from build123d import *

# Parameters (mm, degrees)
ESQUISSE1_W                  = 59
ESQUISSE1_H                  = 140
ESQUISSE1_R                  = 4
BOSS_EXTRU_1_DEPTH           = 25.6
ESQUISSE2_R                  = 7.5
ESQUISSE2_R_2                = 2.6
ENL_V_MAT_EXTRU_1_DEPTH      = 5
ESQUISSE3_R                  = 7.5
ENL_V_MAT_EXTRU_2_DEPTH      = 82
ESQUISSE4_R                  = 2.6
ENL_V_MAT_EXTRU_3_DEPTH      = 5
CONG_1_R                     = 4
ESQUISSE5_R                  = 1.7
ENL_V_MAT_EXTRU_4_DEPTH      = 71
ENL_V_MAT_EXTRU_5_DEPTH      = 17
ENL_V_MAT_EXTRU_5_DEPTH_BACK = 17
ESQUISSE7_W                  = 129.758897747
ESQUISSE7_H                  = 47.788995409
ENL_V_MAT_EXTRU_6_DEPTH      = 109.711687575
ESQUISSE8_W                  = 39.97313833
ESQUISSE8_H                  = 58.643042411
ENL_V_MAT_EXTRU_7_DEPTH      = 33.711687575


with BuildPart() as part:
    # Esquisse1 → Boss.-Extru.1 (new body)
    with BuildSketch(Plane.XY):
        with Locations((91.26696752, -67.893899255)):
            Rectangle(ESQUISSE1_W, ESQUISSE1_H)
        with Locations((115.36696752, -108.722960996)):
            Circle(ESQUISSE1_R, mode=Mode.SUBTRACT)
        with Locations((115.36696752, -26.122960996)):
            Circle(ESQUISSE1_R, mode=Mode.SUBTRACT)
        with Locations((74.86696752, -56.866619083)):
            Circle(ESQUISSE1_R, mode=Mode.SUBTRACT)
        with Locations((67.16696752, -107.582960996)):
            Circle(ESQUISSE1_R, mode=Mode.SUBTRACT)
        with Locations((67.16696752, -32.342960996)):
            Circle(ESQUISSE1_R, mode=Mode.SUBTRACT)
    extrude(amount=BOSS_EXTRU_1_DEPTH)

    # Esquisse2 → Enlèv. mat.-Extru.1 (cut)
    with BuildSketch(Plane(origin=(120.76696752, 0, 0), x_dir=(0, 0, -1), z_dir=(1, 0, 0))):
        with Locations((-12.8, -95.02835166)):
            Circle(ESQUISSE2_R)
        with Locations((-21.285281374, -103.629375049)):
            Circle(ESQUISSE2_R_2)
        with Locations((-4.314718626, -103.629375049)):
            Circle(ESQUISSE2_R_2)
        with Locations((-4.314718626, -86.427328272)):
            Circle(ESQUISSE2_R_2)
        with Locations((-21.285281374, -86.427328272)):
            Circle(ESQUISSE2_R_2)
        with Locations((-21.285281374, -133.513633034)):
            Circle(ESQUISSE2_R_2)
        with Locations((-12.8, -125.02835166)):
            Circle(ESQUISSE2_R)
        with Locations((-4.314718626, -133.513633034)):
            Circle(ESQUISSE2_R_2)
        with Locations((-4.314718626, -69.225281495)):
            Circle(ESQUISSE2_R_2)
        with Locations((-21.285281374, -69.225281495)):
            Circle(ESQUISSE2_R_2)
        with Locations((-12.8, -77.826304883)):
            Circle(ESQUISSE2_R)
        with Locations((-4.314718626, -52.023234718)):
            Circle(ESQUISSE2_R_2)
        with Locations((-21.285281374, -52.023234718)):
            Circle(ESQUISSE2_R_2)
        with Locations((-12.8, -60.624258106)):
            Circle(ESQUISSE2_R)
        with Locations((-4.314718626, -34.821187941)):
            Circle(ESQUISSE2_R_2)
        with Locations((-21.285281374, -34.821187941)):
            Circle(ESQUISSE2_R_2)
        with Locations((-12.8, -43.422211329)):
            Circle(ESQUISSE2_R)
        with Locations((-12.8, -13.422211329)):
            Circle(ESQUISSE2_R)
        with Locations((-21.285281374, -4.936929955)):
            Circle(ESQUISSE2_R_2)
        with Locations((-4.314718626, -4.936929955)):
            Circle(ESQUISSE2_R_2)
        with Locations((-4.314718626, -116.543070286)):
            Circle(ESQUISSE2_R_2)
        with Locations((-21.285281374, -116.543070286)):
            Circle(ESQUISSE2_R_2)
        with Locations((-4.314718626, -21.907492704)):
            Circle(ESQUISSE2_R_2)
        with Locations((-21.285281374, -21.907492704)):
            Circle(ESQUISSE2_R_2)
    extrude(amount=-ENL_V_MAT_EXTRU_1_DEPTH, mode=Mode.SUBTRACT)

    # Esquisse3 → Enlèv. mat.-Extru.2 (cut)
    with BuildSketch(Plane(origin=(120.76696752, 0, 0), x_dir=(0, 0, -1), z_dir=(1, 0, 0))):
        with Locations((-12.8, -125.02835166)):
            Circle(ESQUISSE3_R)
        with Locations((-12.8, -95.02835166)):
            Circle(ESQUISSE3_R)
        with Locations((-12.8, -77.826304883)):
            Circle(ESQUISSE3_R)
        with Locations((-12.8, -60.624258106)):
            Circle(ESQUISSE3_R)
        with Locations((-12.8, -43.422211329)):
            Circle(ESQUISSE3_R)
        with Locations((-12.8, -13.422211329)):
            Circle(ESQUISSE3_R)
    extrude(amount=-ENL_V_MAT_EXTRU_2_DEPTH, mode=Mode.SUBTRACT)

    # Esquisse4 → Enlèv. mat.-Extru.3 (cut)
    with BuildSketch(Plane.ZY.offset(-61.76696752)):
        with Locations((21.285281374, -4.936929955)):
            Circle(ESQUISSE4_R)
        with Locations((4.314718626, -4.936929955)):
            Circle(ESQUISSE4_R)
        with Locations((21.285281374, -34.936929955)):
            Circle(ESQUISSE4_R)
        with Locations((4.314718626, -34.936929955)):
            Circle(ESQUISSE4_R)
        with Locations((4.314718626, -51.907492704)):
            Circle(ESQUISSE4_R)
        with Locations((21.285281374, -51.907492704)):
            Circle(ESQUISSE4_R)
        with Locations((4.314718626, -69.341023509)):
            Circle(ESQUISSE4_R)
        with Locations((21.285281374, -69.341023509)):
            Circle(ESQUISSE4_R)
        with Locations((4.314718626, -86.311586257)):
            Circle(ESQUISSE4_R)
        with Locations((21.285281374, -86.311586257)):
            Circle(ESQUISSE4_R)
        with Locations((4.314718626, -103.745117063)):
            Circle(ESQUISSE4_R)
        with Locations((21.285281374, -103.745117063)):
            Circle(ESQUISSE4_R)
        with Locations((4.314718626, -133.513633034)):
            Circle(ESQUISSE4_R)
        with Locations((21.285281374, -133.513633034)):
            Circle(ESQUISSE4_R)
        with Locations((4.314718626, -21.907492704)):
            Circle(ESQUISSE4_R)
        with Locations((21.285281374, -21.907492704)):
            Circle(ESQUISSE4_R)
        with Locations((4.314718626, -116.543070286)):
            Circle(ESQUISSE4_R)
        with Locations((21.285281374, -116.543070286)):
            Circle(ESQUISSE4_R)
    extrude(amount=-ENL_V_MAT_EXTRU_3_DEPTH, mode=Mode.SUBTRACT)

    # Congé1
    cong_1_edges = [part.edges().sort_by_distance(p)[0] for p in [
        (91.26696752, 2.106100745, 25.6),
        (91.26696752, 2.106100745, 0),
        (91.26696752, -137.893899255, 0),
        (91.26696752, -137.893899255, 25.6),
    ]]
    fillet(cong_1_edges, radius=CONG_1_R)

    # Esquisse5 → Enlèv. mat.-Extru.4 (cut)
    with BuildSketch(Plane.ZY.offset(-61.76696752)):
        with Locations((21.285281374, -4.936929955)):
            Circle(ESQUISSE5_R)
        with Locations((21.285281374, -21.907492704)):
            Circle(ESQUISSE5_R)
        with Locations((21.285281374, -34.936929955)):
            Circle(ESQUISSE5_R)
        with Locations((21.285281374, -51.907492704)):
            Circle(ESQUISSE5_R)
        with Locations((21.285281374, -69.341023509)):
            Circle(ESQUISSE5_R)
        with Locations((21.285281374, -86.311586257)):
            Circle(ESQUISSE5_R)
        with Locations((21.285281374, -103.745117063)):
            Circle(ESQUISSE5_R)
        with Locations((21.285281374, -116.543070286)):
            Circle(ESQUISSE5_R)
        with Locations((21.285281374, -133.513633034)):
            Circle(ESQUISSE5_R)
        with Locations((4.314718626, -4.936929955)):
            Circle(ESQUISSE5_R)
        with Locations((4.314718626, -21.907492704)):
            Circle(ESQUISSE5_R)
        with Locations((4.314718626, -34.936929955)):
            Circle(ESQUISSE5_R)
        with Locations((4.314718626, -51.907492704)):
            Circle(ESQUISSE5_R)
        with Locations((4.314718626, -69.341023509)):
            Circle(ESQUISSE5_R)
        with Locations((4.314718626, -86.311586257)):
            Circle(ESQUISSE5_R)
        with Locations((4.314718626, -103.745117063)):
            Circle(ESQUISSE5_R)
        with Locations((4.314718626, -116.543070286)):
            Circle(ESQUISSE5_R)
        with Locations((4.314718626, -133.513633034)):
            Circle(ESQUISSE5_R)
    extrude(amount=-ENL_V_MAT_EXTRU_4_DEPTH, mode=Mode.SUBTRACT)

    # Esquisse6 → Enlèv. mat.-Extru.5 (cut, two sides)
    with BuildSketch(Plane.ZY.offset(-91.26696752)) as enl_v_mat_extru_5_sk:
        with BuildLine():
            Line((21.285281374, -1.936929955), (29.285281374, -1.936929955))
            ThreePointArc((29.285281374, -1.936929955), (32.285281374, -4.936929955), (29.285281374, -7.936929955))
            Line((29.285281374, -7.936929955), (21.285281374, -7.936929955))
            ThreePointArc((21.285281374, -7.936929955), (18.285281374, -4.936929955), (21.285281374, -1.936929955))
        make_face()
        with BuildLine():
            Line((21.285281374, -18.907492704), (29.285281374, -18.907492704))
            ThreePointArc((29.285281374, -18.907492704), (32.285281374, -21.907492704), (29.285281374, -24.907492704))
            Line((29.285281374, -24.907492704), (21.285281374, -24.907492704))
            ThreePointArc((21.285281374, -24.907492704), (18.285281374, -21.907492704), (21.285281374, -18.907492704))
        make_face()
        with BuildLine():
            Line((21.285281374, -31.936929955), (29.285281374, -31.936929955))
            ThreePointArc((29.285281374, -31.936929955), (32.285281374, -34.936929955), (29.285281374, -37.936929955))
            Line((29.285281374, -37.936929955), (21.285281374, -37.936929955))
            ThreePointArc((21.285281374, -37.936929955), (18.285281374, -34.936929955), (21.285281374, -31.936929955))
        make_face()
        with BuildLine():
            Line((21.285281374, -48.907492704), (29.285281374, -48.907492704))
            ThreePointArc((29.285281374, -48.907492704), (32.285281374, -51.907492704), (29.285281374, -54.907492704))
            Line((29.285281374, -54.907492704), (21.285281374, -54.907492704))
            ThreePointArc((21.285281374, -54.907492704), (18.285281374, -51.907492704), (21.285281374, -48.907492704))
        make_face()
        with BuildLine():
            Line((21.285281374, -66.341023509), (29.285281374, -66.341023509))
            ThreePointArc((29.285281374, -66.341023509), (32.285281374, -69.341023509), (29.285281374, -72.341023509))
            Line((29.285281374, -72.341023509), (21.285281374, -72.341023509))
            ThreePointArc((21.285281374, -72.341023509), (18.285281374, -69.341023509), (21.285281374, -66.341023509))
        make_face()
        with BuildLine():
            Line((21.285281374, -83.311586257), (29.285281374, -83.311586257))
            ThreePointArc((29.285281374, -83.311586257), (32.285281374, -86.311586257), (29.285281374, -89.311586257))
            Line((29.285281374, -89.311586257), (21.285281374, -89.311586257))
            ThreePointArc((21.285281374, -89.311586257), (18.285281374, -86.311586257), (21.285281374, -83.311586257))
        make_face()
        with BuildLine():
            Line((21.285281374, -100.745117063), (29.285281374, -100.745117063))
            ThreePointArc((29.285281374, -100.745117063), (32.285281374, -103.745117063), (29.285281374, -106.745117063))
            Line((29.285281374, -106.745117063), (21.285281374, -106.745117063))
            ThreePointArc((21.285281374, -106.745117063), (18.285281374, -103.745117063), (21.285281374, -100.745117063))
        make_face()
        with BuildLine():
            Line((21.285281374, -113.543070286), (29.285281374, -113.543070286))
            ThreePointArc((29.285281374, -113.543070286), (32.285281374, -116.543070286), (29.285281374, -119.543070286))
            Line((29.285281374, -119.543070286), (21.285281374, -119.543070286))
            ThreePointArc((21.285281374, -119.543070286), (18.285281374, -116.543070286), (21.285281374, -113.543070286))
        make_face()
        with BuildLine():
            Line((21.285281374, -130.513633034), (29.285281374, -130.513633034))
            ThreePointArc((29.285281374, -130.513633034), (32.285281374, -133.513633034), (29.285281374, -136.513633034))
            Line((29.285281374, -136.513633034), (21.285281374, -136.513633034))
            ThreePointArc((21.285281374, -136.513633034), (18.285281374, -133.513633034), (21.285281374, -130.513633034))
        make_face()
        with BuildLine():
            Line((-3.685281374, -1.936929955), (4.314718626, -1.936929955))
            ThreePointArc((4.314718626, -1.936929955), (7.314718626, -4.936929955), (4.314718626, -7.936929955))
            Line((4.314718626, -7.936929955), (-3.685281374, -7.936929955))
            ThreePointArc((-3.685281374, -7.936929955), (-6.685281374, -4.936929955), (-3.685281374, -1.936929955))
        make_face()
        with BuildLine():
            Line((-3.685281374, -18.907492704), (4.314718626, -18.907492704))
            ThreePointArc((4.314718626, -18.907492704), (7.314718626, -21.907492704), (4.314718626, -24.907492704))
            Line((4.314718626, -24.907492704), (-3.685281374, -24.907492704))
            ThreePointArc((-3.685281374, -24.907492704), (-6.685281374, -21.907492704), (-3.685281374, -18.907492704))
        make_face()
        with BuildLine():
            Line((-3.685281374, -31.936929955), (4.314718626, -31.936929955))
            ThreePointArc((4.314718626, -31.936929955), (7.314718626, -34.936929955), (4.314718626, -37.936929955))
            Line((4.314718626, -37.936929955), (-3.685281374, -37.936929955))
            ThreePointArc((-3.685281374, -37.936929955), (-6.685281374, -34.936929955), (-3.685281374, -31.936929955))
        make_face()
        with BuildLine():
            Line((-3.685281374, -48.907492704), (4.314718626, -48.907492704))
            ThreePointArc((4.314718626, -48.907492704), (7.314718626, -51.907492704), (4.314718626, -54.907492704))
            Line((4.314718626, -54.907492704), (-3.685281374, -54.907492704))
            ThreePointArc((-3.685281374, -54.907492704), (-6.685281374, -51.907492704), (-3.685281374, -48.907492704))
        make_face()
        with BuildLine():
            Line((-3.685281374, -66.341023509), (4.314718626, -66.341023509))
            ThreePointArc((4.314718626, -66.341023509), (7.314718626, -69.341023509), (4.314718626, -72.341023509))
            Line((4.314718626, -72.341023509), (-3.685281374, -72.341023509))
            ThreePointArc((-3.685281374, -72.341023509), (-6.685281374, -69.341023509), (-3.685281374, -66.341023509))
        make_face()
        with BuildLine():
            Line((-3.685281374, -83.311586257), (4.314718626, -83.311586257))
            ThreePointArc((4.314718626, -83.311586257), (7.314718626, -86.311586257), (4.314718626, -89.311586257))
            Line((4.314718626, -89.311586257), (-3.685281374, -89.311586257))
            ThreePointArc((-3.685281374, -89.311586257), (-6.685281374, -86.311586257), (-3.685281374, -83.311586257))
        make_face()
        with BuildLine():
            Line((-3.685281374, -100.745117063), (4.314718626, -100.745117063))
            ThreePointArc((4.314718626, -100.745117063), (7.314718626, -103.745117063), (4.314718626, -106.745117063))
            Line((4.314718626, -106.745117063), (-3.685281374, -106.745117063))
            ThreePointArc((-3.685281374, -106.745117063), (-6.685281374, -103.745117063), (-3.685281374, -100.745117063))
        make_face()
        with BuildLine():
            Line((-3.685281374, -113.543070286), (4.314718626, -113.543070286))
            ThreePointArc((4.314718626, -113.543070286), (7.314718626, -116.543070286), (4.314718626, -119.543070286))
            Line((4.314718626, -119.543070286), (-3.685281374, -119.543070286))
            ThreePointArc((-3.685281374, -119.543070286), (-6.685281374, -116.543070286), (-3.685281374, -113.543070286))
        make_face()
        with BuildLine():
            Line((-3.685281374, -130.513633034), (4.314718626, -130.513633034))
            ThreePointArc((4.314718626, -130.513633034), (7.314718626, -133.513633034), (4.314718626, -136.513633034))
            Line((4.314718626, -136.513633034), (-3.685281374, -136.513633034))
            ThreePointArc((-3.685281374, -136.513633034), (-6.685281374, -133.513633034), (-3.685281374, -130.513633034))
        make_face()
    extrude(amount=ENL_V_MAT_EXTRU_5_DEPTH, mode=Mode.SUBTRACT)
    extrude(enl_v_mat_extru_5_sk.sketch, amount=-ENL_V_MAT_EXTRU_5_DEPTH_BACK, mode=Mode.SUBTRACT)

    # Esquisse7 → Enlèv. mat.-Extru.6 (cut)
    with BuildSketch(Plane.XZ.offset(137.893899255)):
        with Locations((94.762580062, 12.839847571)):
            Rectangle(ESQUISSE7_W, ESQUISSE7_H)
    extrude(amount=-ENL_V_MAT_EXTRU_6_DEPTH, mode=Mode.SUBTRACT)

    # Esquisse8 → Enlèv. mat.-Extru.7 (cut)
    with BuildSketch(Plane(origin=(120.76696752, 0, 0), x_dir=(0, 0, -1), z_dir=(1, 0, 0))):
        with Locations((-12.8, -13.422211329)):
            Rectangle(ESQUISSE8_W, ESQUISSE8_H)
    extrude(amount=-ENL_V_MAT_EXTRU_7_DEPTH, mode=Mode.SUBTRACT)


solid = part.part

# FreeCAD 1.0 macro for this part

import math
import FreeCAD as App
import Part
import Sketcher

V = App.Vector


def edges_at(feature, points):
    """Names of the edges that pass closest to the given points."""
    edges = feature.Shape.Edges
    near = lambda p: min(range(len(edges)), key=lambda i: edges[i].distToShape(Part.Vertex(*p))[0])
    return sorted({f"Edge{near(p) + 1}" for p in points})


def add_polygon(sketch, points):
    """Adds a closed chain of lines whose ends are joined by coincident constraints."""
    first, n = sketch.GeometryCount, len(points)
    for a, b in zip(points, points[1:] + points[:1]):
        sketch.addGeometry(Part.LineSegment(App.Vector(*a, 0), App.Vector(*b, 0)), False)
    for i in range(n):
        sketch.addConstraint(Sketcher.Constraint("Coincident", first + i, 2, first + (i + 1) % n, 1))

doc = App.newDocument("Part")
body = doc.addObject("PartDesign::Body", "Body")

# Sketch on XY plane
sketch1 = doc.addObject("Sketcher::SketchObject", "Sketch")
body.addObject(sketch1)
sketch1.AttachmentSupport = (doc.XY_Plane, [""])
sketch1.MapMode = "FlatFace"
add_polygon(sketch1, [(61.766968, 2.106101), (61.766968, -137.893899), (120.766968, -137.893899), (120.766968, 2.106101)])  # lines 0-3
sketch1.addGeometry(Part.Circle(V(67.166968, -107.582961, 0), V(0, 0, 1), 4), False)  # 4
sketch1.addGeometry(Part.Circle(V(115.366968, -108.722961, 0), V(0, 0, 1), 4), False)  # 5
sketch1.addGeometry(Part.Circle(V(74.866968, -56.866619, 0), V(0, 0, 1), 4), False)  # 6
sketch1.addGeometry(Part.Circle(V(67.166968, -32.342961, 0), V(0, 0, 1), 4), False)  # 7
sketch1.addGeometry(Part.Circle(V(115.366968, -26.122961, 0), V(0, 0, 1), 4), False)  # 8
sketch1.addConstraint([
    Sketcher.Constraint("Vertical", 0),
    Sketcher.Constraint("Horizontal", 1),
    Sketcher.Constraint("Vertical", 2),
    Sketcher.Constraint("Horizontal", 3),
    Sketcher.Constraint("Equal", 4, 5),
    Sketcher.Constraint("Equal", 5, 6),
    Sketcher.Constraint("Equal", 6, 7),
    Sketcher.Constraint("Equal", 7, 8),
    Sketcher.Constraint("Vertical", 4, 3, 7, 3),
    Sketcher.Constraint("Vertical", 5, 3, 8, 3),
    Sketcher.Constraint("Diameter", 4, 8.0),
    Sketcher.Constraint("DistanceX", 1, 1, 1, 2, 59.0),
    Sketcher.Constraint("DistanceY", 0, 2, 0, 1, 140.0),
    Sketcher.Constraint("DistanceX", 4, 3, 5, 3, 48.2),
    Sketcher.Constraint("DistanceX", 4, 3, 6, 3, 7.7),
    Sketcher.Constraint("DistanceY", 5, 3, 8, 3, 82.6),
    Sketcher.Constraint("DistanceX", 0, 2, 4, 3, 5.4),
    Sketcher.Constraint("DistanceY", 5, 3, 4, 3, 1.14),
    Sketcher.Constraint("DistanceY", 4, 3, 7, 3, 75.24),
    Sketcher.Constraint("DistanceY", 0, 2, -1, 1, 137.893899),
    Sketcher.Constraint("DistanceY", 4, 3, -1, 1, 107.582961),
    Sketcher.Constraint("DistanceY", 6, 3, -1, 1, 56.866619),
    Sketcher.Constraint("DistanceX", -1, 1, 4, 3, 67.166968),
])
pad1 = doc.addObject("PartDesign::Pad", "Pad")
body.addObject(pad1)
pad1.Profile = sketch1
pad1.Length = 25.6

# Sketch on YZ plane
sketch2 = doc.addObject("Sketcher::SketchObject", "Sketch001")
body.addObject(sketch2)
sketch2.AttachmentSupport = (doc.YZ_Plane, [""])
sketch2.MapMode = "FlatFace"
sketch2.AttachmentOffset = App.Placement(V(0, 0, 120.766968), App.Rotation())
sketch2.addGeometry([
    Part.Circle(V(-95.028352, 12.8, 0), V(0, 0, 1), 7.5),  # 0
    Part.Circle(V(-103.629375, 21.285281, 0), V(0, 0, 1), 2.6),  # 1
    Part.Circle(V(-103.629375, 4.314719, 0), V(0, 0, 1), 2.6),  # 2
    Part.Circle(V(-86.427328, 4.314719, 0), V(0, 0, 1), 2.6),  # 3
    Part.Circle(V(-86.427328, 21.285281, 0), V(0, 0, 1), 2.6),  # 4
    Part.Circle(V(-133.513633, 21.285281, 0), V(0, 0, 1), 2.6),  # 5
    Part.Circle(V(-125.028352, 12.8, 0), V(0, 0, 1), 7.5),  # 6
    Part.Circle(V(-133.513633, 4.314719, 0), V(0, 0, 1), 2.6),  # 7
    Part.Circle(V(-69.225281, 4.314719, 0), V(0, 0, 1), 2.6),  # 8
    Part.Circle(V(-69.225281, 21.285281, 0), V(0, 0, 1), 2.6),  # 9
    Part.Circle(V(-77.826305, 12.8, 0), V(0, 0, 1), 7.5),  # 10
    Part.Circle(V(-52.023235, 4.314719, 0), V(0, 0, 1), 2.6),  # 11
    Part.Circle(V(-52.023235, 21.285281, 0), V(0, 0, 1), 2.6),  # 12
    Part.Circle(V(-60.624258, 12.8, 0), V(0, 0, 1), 7.5),  # 13
    Part.Circle(V(-34.821188, 4.314719, 0), V(0, 0, 1), 2.6),  # 14
    Part.Circle(V(-34.821188, 21.285281, 0), V(0, 0, 1), 2.6),  # 15
    Part.Circle(V(-43.422211, 12.8, 0), V(0, 0, 1), 7.5),  # 16
    Part.Circle(V(-13.422211, 12.8, 0), V(0, 0, 1), 7.5),  # 17
    Part.Circle(V(-4.93693, 21.285281, 0), V(0, 0, 1), 2.6),  # 18
    Part.Circle(V(-4.93693, 4.314719, 0), V(0, 0, 1), 2.6),  # 19
    Part.Circle(V(-116.54307, 4.314719, 0), V(0, 0, 1), 2.6),  # 20
    Part.Circle(V(-116.54307, 21.285281, 0), V(0, 0, 1), 2.6),  # 21
    Part.Circle(V(-21.907493, 4.314719, 0), V(0, 0, 1), 2.6),  # 22
    Part.Circle(V(-21.907493, 21.285281, 0), V(0, 0, 1), 2.6),  # 23
], False)
sketch2.addConstraint([
    Sketcher.Constraint("Equal", 1, 2),
    Sketcher.Constraint("Equal", 2, 3),
    Sketcher.Constraint("Equal", 3, 4),
    Sketcher.Constraint("Equal", 4, 5),
    Sketcher.Constraint("Equal", 0, 6),
    Sketcher.Constraint("Equal", 5, 7),
    Sketcher.Constraint("Equal", 7, 8),
    Sketcher.Constraint("Equal", 8, 9),
    Sketcher.Constraint("Equal", 6, 10),
    Sketcher.Constraint("Equal", 9, 11),
    Sketcher.Constraint("Equal", 11, 12),
    Sketcher.Constraint("Equal", 10, 13),
    Sketcher.Constraint("Equal", 12, 14),
    Sketcher.Constraint("Equal", 14, 15),
    Sketcher.Constraint("Equal", 13, 16),
    Sketcher.Constraint("Equal", 16, 17),
    Sketcher.Constraint("Equal", 15, 18),
    Sketcher.Constraint("Equal", 18, 19),
    Sketcher.Constraint("Equal", 19, 20),
    Sketcher.Constraint("Equal", 20, 21),
    Sketcher.Constraint("Equal", 21, 22),
    Sketcher.Constraint("Equal", 22, 23),
    Sketcher.Constraint("Horizontal", 2, 3, 3, 3),
    Sketcher.Constraint("Horizontal", 1, 3, 4, 3),
    Sketcher.Constraint("Horizontal", 4, 3, 5, 3),
    Sketcher.Constraint("Horizontal", 0, 3, 6, 3),
    Sketcher.Constraint("Horizontal", 3, 3, 7, 3),
    Sketcher.Constraint("Horizontal", 7, 3, 8, 3),
    Sketcher.Constraint("Horizontal", 5, 3, 9, 3),
    Sketcher.Constraint("Horizontal", 6, 3, 10, 3),
    Sketcher.Constraint("Horizontal", 8, 3, 11, 3),
    Sketcher.Constraint("Horizontal", 9, 3, 12, 3),
    Sketcher.Constraint("Horizontal", 10, 3, 13, 3),
    Sketcher.Constraint("Horizontal", 11, 3, 14, 3),
    Sketcher.Constraint("Horizontal", 12, 3, 15, 3),
    Sketcher.Constraint("Horizontal", 13, 3, 16, 3),
    Sketcher.Constraint("Horizontal", 16, 3, 17, 3),
    Sketcher.Constraint("Horizontal", 15, 3, 18, 3),
    Sketcher.Constraint("Horizontal", 14, 3, 19, 3),
    Sketcher.Constraint("Horizontal", 19, 3, 20, 3),
    Sketcher.Constraint("Horizontal", 18, 3, 21, 3),
    Sketcher.Constraint("Horizontal", 20, 3, 22, 3),
    Sketcher.Constraint("Horizontal", 21, 3, 23, 3),
    Sketcher.Constraint("Vertical", 1, 3, 2, 3),
    Sketcher.Constraint("Vertical", 3, 3, 4, 3),
    Sketcher.Constraint("Vertical", 5, 3, 7, 3),
    Sketcher.Constraint("Vertical", 8, 3, 9, 3),
    Sketcher.Constraint("Vertical", 11, 3, 12, 3),
    Sketcher.Constraint("Vertical", 14, 3, 15, 3),
    Sketcher.Constraint("Vertical", 18, 3, 19, 3),
    Sketcher.Constraint("Vertical", 20, 3, 21, 3),
    Sketcher.Constraint("Vertical", 22, 3, 23, 3),
    Sketcher.Constraint("Diameter", 0, 15.0),
    Sketcher.Constraint("Diameter", 1, 5.2),
    Sketcher.Constraint("DistanceX", 6, 3, 0, 3, 30.0),
    Sketcher.Constraint("DistanceX", 16, 3, 17, 3, 30.0),
    Sketcher.Constraint("DistanceY", -1, 1, 0, 3, 12.8),
    Sketcher.Constraint("DistanceX", 0, 3, -1, 1, 95.028352),
    Sketcher.Constraint("DistanceY", -1, 1, 1, 3, 21.285281),
    Sketcher.Constraint("DistanceY", -1, 1, 2, 3, 4.314719),
    Sketcher.Constraint("DistanceX", 3, 3, -1, 1, 86.427328),
    Sketcher.Constraint("DistanceX", 8, 3, -1, 1, 69.225281),
    Sketcher.Constraint("DistanceX", 13, 3, -1, 1, 60.624258),
    Sketcher.Constraint("DistanceX", 16, 3, -1, 1, 43.422211),
    Sketcher.Constraint("DistanceX", 18, 3, -1, 1, 4.93693),
    Sketcher.Constraint("DistanceX", 20, 3, -1, 1, 116.54307),
    Sketcher.Constraint("DistanceX", 5, 3, 0, 3, 38.485281),
    Sketcher.Constraint("DistanceX", 10, 3, 11, 3, 25.80307),
    Sketcher.Constraint("DistanceX", 13, 3, 14, 3, 25.80307),
    Sketcher.Constraint("DistanceX", 22, 3, 17, 3, 8.485281),
    Sketcher.Constraint("DistanceX", 1, 3, -1, 1, 103.629375),
    Sketcher.Constraint("DistanceX", 10, 3, -1, 1, 77.826305),
])
pocket1 = doc.addObject("PartDesign::Pocket", "Pocket")
body.addObject(pocket1)
pocket1.Profile = sketch2
pocket1.Length = 5

# Sketch on YZ plane
sketch3 = doc.addObject("Sketcher::SketchObject", "Sketch002")
body.addObject(sketch3)
sketch3.AttachmentSupport = (doc.YZ_Plane, [""])
sketch3.MapMode = "FlatFace"
sketch3.AttachmentOffset = App.Placement(V(0, 0, 120.766968), App.Rotation())
sketch3.addGeometry([
    Part.Circle(V(-125.028352, 12.8, 0), V(0, 0, 1), 7.5),  # 0
    Part.Circle(V(-95.028352, 12.8, 0), V(0, 0, 1), 7.5),  # 1
    Part.Circle(V(-77.826305, 12.8, 0), V(0, 0, 1), 7.5),  # 2
    Part.Circle(V(-60.624258, 12.8, 0), V(0, 0, 1), 7.5),  # 3
    Part.Circle(V(-43.422211, 12.8, 0), V(0, 0, 1), 7.5),  # 4
    Part.Circle(V(-13.422211, 12.8, 0), V(0, 0, 1), 7.5),  # 5
], False)
sketch3.addConstraint([
    Sketcher.Constraint("Equal", 0, 1),
    Sketcher.Constraint("Equal", 1, 2),
    Sketcher.Constraint("Equal", 2, 3),
    Sketcher.Constraint("Equal", 3, 4),
    Sketcher.Constraint("Equal", 4, 5),
    Sketcher.Constraint("Horizontal", 0, 3, 1, 3),
    Sketcher.Constraint("Horizontal", 1, 3, 2, 3),
    Sketcher.Constraint("Horizontal", 2, 3, 3, 3),
    Sketcher.Constraint("Horizontal", 3, 3, 4, 3),
    Sketcher.Constraint("Horizontal", 4, 3, 5, 3),
    Sketcher.Constraint("Diameter", 0, 15.0),
    Sketcher.Constraint("DistanceX", 0, 3, 1, 3, 30.0),
    Sketcher.Constraint("DistanceX", 4, 3, 5, 3, 30.0),
    Sketcher.Constraint("DistanceY", -1, 1, 0, 3, 12.8),
    Sketcher.Constraint("DistanceX", 0, 3, -1, 1, 125.028352),
    Sketcher.Constraint("DistanceX", 3, 3, -1, 1, 60.624258),
    Sketcher.Constraint("DistanceX", 4, 3, -1, 1, 43.422211),
    Sketcher.Constraint("DistanceX", 2, 3, -1, 1, 77.826305),
])
pocket2 = doc.addObject("PartDesign::Pocket", "Pocket001")
body.addObject(pocket2)
pocket2.Profile = sketch3
pocket2.Length = 82

# Sketch on YZ plane
sketch4 = doc.addObject("Sketcher::SketchObject", "Sketch003")
body.addObject(sketch4)
sketch4.AttachmentSupport = (doc.YZ_Plane, [""])
sketch4.MapMode = "FlatFace"
sketch4.AttachmentOffset = App.Placement(V(0, 0, 61.766968), App.Rotation())
sketch4.addGeometry([
    Part.Circle(V(-4.93693, 21.285281, 0), V(0, 0, 1), 2.6),  # 0
    Part.Circle(V(-4.93693, 4.314719, 0), V(0, 0, 1), 2.6),  # 1
    Part.Circle(V(-34.93693, 21.285281, 0), V(0, 0, 1), 2.6),  # 2
    Part.Circle(V(-34.93693, 4.314719, 0), V(0, 0, 1), 2.6),  # 3
    Part.Circle(V(-51.907493, 4.314719, 0), V(0, 0, 1), 2.6),  # 4
    Part.Circle(V(-51.907493, 21.285281, 0), V(0, 0, 1), 2.6),  # 5
    Part.Circle(V(-69.341024, 4.314719, 0), V(0, 0, 1), 2.6),  # 6
    Part.Circle(V(-69.341024, 21.285281, 0), V(0, 0, 1), 2.6),  # 7
    Part.Circle(V(-86.311586, 4.314719, 0), V(0, 0, 1), 2.6),  # 8
    Part.Circle(V(-86.311586, 21.285281, 0), V(0, 0, 1), 2.6),  # 9
    Part.Circle(V(-103.745117, 4.314719, 0), V(0, 0, 1), 2.6),  # 10
    Part.Circle(V(-103.745117, 21.285281, 0), V(0, 0, 1), 2.6),  # 11
    Part.Circle(V(-133.513633, 4.314719, 0), V(0, 0, 1), 2.6),  # 12
    Part.Circle(V(-133.513633, 21.285281, 0), V(0, 0, 1), 2.6),  # 13
    Part.Circle(V(-21.907493, 4.314719, 0), V(0, 0, 1), 2.6),  # 14
    Part.Circle(V(-21.907493, 21.285281, 0), V(0, 0, 1), 2.6),  # 15
    Part.Circle(V(-116.54307, 4.314719, 0), V(0, 0, 1), 2.6),  # 16
    Part.Circle(V(-116.54307, 21.285281, 0), V(0, 0, 1), 2.6),  # 17
], False)
sketch4.addConstraint([
    Sketcher.Constraint("Equal", 0, 1),
    Sketcher.Constraint("Equal", 1, 2),
    Sketcher.Constraint("Equal", 2, 3),
    Sketcher.Constraint("Equal", 3, 4),
    Sketcher.Constraint("Equal", 4, 5),
    Sketcher.Constraint("Equal", 5, 6),
    Sketcher.Constraint("Equal", 6, 7),
    Sketcher.Constraint("Equal", 7, 8),
    Sketcher.Constraint("Equal", 8, 9),
    Sketcher.Constraint("Equal", 9, 10),
    Sketcher.Constraint("Equal", 10, 11),
    Sketcher.Constraint("Equal", 11, 12),
    Sketcher.Constraint("Equal", 12, 13),
    Sketcher.Constraint("Equal", 13, 14),
    Sketcher.Constraint("Equal", 14, 15),
    Sketcher.Constraint("Equal", 15, 16),
    Sketcher.Constraint("Equal", 16, 17),
    Sketcher.Constraint("Horizontal", 0, 3, 2, 3),
    Sketcher.Constraint("Horizontal", 1, 3, 3, 3),
    Sketcher.Constraint("Horizontal", 3, 3, 4, 3),
    Sketcher.Constraint("Horizontal", 2, 3, 5, 3),
    Sketcher.Constraint("Horizontal", 4, 3, 6, 3),
    Sketcher.Constraint("Horizontal", 5, 3, 7, 3),
    Sketcher.Constraint("Horizontal", 6, 3, 8, 3),
    Sketcher.Constraint("Horizontal", 7, 3, 9, 3),
    Sketcher.Constraint("Horizontal", 8, 3, 10, 3),
    Sketcher.Constraint("Horizontal", 9, 3, 11, 3),
    Sketcher.Constraint("Horizontal", 10, 3, 12, 3),
    Sketcher.Constraint("Horizontal", 11, 3, 13, 3),
    Sketcher.Constraint("Horizontal", 12, 3, 14, 3),
    Sketcher.Constraint("Horizontal", 13, 3, 15, 3),
    Sketcher.Constraint("Horizontal", 14, 3, 16, 3),
    Sketcher.Constraint("Horizontal", 15, 3, 17, 3),
    Sketcher.Constraint("Vertical", 0, 3, 1, 3),
    Sketcher.Constraint("Vertical", 2, 3, 3, 3),
    Sketcher.Constraint("Vertical", 4, 3, 5, 3),
    Sketcher.Constraint("Vertical", 6, 3, 7, 3),
    Sketcher.Constraint("Vertical", 8, 3, 9, 3),
    Sketcher.Constraint("Vertical", 10, 3, 11, 3),
    Sketcher.Constraint("Vertical", 12, 3, 13, 3),
    Sketcher.Constraint("Vertical", 14, 3, 15, 3),
    Sketcher.Constraint("Vertical", 16, 3, 17, 3),
    Sketcher.Constraint("Diameter", 0, 5.2),
    Sketcher.Constraint("DistanceX", 2, 3, 0, 3, 30.0),
    Sketcher.Constraint("DistanceX", 4, 3, 14, 3, 30.0),
    Sketcher.Constraint("DistanceX", 0, 3, -1, 1, 4.93693),
    Sketcher.Constraint("DistanceY", -1, 1, 0, 3, 21.285281),
    Sketcher.Constraint("DistanceY", -1, 1, 1, 3, 4.314719),
    Sketcher.Constraint("DistanceX", 16, 3, -1, 1, 116.54307),
    Sketcher.Constraint("DistanceX", 6, 3, 4, 3, 17.433531),
    Sketcher.Constraint("DistanceX", 10, 3, 8, 3, 17.433531),
    Sketcher.Constraint("DistanceX", 12, 3, 6, 3, 64.17261),
    Sketcher.Constraint("DistanceX", 4, 3, -1, 1, 51.907493),
    Sketcher.Constraint("DistanceX", 8, 3, -1, 1, 86.311586),
])
pocket3 = doc.addObject("PartDesign::Pocket", "Pocket002")
body.addObject(pocket3)
pocket3.Profile = sketch4
pocket3.Length = 5
pocket3.Reversed = True
doc.recompute()

fillet = doc.addObject("PartDesign::Fillet", "Fillet")
body.addObject(fillet)
fillet.Base = (pocket3, edges_at(pocket3, [
    (91.267, 2.106, 25.6),
    (91.267, 2.106, 0),
    (91.267, -137.894, 0),
    (91.267, -137.894, 25.6),
]))
fillet.Radius = 4

# Sketch on YZ plane
sketch5 = doc.addObject("Sketcher::SketchObject", "Sketch004")
body.addObject(sketch5)
sketch5.AttachmentSupport = (doc.YZ_Plane, [""])
sketch5.MapMode = "FlatFace"
sketch5.AttachmentOffset = App.Placement(V(0, 0, 61.766968), App.Rotation())
sketch5.addGeometry([
    Part.Circle(V(-4.93693, 21.285281, 0), V(0, 0, 1), 1.7),  # 0
    Part.Circle(V(-21.907493, 21.285281, 0), V(0, 0, 1), 1.7),  # 1
    Part.Circle(V(-34.93693, 21.285281, 0), V(0, 0, 1), 1.7),  # 2
    Part.Circle(V(-51.907493, 21.285281, 0), V(0, 0, 1), 1.7),  # 3
    Part.Circle(V(-69.341024, 21.285281, 0), V(0, 0, 1), 1.7),  # 4
    Part.Circle(V(-86.311586, 21.285281, 0), V(0, 0, 1), 1.7),  # 5
    Part.Circle(V(-103.745117, 21.285281, 0), V(0, 0, 1), 1.7),  # 6
    Part.Circle(V(-116.54307, 21.285281, 0), V(0, 0, 1), 1.7),  # 7
    Part.Circle(V(-133.513633, 21.285281, 0), V(0, 0, 1), 1.7),  # 8
    Part.Circle(V(-4.93693, 4.314719, 0), V(0, 0, 1), 1.7),  # 9
    Part.Circle(V(-21.907493, 4.314719, 0), V(0, 0, 1), 1.7),  # 10
    Part.Circle(V(-34.93693, 4.314719, 0), V(0, 0, 1), 1.7),  # 11
    Part.Circle(V(-51.907493, 4.314719, 0), V(0, 0, 1), 1.7),  # 12
    Part.Circle(V(-69.341024, 4.314719, 0), V(0, 0, 1), 1.7),  # 13
    Part.Circle(V(-86.311586, 4.314719, 0), V(0, 0, 1), 1.7),  # 14
    Part.Circle(V(-103.745117, 4.314719, 0), V(0, 0, 1), 1.7),  # 15
    Part.Circle(V(-116.54307, 4.314719, 0), V(0, 0, 1), 1.7),  # 16
    Part.Circle(V(-133.513633, 4.314719, 0), V(0, 0, 1), 1.7),  # 17
], False)
sketch5.addConstraint([
    Sketcher.Constraint("Equal", 0, 1),
    Sketcher.Constraint("Equal", 1, 2),
    Sketcher.Constraint("Equal", 2, 3),
    Sketcher.Constraint("Equal", 3, 4),
    Sketcher.Constraint("Equal", 4, 5),
    Sketcher.Constraint("Equal", 5, 6),
    Sketcher.Constraint("Equal", 6, 7),
    Sketcher.Constraint("Equal", 7, 8),
    Sketcher.Constraint("Equal", 8, 9),
    Sketcher.Constraint("Equal", 9, 10),
    Sketcher.Constraint("Equal", 10, 11),
    Sketcher.Constraint("Equal", 11, 12),
    Sketcher.Constraint("Equal", 12, 13),
    Sketcher.Constraint("Equal", 13, 14),
    Sketcher.Constraint("Equal", 14, 15),
    Sketcher.Constraint("Equal", 15, 16),
    Sketcher.Constraint("Equal", 16, 17),
    Sketcher.Constraint("Horizontal", 0, 3, 1, 3),
    Sketcher.Constraint("Horizontal", 1, 3, 2, 3),
    Sketcher.Constraint("Horizontal", 2, 3, 3, 3),
    Sketcher.Constraint("Horizontal", 3, 3, 4, 3),
    Sketcher.Constraint("Horizontal", 4, 3, 5, 3),
    Sketcher.Constraint("Horizontal", 5, 3, 6, 3),
    Sketcher.Constraint("Horizontal", 6, 3, 7, 3),
    Sketcher.Constraint("Horizontal", 7, 3, 8, 3),
    Sketcher.Constraint("Horizontal", 9, 3, 10, 3),
    Sketcher.Constraint("Horizontal", 10, 3, 11, 3),
    Sketcher.Constraint("Horizontal", 11, 3, 12, 3),
    Sketcher.Constraint("Horizontal", 12, 3, 13, 3),
    Sketcher.Constraint("Horizontal", 13, 3, 14, 3),
    Sketcher.Constraint("Horizontal", 14, 3, 15, 3),
    Sketcher.Constraint("Horizontal", 15, 3, 16, 3),
    Sketcher.Constraint("Horizontal", 16, 3, 17, 3),
    Sketcher.Constraint("Vertical", 0, 3, 9, 3),
    Sketcher.Constraint("Vertical", 1, 3, 10, 3),
    Sketcher.Constraint("Vertical", 2, 3, 11, 3),
    Sketcher.Constraint("Vertical", 3, 3, 12, 3),
    Sketcher.Constraint("Vertical", 4, 3, 13, 3),
    Sketcher.Constraint("Vertical", 5, 3, 14, 3),
    Sketcher.Constraint("Vertical", 6, 3, 15, 3),
    Sketcher.Constraint("Vertical", 7, 3, 16, 3),
    Sketcher.Constraint("Vertical", 8, 3, 17, 3),
    Sketcher.Constraint("Diameter", 0, 3.4),
    Sketcher.Constraint("DistanceX", 2, 3, 0, 3, 30.0),
    Sketcher.Constraint("DistanceX", 3, 3, 1, 3, 30.0),
    Sketcher.Constraint("DistanceX", 0, 3, -1, 1, 4.93693),
    Sketcher.Constraint("DistanceY", -1, 1, 0, 3, 21.285281),
    Sketcher.Constraint("DistanceX", 7, 3, -1, 1, 116.54307),
    Sketcher.Constraint("DistanceY", -1, 1, 9, 3, 4.314719),
    Sketcher.Constraint("DistanceX", 4, 3, 3, 3, 17.433531),
    Sketcher.Constraint("DistanceX", 6, 3, 5, 3, 17.433531),
    Sketcher.Constraint("DistanceX", 8, 3, 4, 3, 64.17261),
    Sketcher.Constraint("DistanceX", 1, 3, -1, 1, 21.907493),
    Sketcher.Constraint("DistanceX", 5, 3, -1, 1, 86.311586),
])
pocket4 = doc.addObject("PartDesign::Pocket", "Pocket003")
body.addObject(pocket4)
pocket4.Profile = sketch5
pocket4.Length = 71
pocket4.Reversed = True

# Sketch on YZ plane
sketch6 = doc.addObject("Sketcher::SketchObject", "Sketch005")
body.addObject(sketch6)
sketch6.AttachmentSupport = (doc.YZ_Plane, [""])
sketch6.MapMode = "FlatFace"
sketch6.AttachmentOffset = App.Placement(V(0, 0, 91.266968), App.Rotation())
sketch6.addGeometry([
    Part.LineSegment(V(-1.93693, 29.285281, 0), V(-1.93693, 21.285281, 0)),  # 0
    Part.ArcOfCircle(Part.Circle(V(-4.93693, 21.285281, 0), V(0, 0, 1), 3), math.radians(180), math.radians(360)),  # 1
    Part.LineSegment(V(-7.93693, 21.285281, 0), V(-7.93693, 29.285281, 0)),  # 2
    Part.ArcOfCircle(Part.Circle(V(-4.93693, 29.285281, 0), V(0, 0, 1), 3), math.radians(0), math.radians(180)),  # 3
    Part.LineSegment(V(-18.907493, 29.285281, 0), V(-18.907493, 21.285281, 0)),  # 4
    Part.ArcOfCircle(Part.Circle(V(-21.907493, 21.285281, 0), V(0, 0, 1), 3), math.radians(180), math.radians(360)),  # 5
    Part.LineSegment(V(-24.907493, 21.285281, 0), V(-24.907493, 29.285281, 0)),  # 6
    Part.ArcOfCircle(Part.Circle(V(-21.907493, 29.285281, 0), V(0, 0, 1), 3), math.radians(0), math.radians(180)),  # 7
    Part.LineSegment(V(-31.93693, 29.285281, 0), V(-31.93693, 21.285281, 0)),  # 8
    Part.ArcOfCircle(Part.Circle(V(-34.93693, 21.285281, 0), V(0, 0, 1), 3), math.radians(180), math.radians(360)),  # 9
    Part.LineSegment(V(-37.93693, 21.285281, 0), V(-37.93693, 29.285281, 0)),  # 10
    Part.ArcOfCircle(Part.Circle(V(-34.93693, 29.285281, 0), V(0, 0, 1), 3), math.radians(0), math.radians(180)),  # 11
    Part.LineSegment(V(-48.907493, 29.285281, 0), V(-48.907493, 21.285281, 0)),  # 12
    Part.ArcOfCircle(Part.Circle(V(-51.907493, 21.285281, 0), V(0, 0, 1), 3), math.radians(180), math.radians(360)),  # 13
    Part.LineSegment(V(-54.907493, 21.285281, 0), V(-54.907493, 29.285281, 0)),  # 14
    Part.ArcOfCircle(Part.Circle(V(-51.907493, 29.285281, 0), V(0, 0, 1), 3), math.radians(0), math.radians(180)),  # 15
    Part.LineSegment(V(-66.341024, 29.285281, 0), V(-66.341024, 21.285281, 0)),  # 16
    Part.ArcOfCircle(Part.Circle(V(-69.341024, 21.285281, 0), V(0, 0, 1), 3), math.radians(180), math.radians(360)),  # 17
    Part.LineSegment(V(-72.341024, 21.285281, 0), V(-72.341024, 29.285281, 0)),  # 18
    Part.ArcOfCircle(Part.Circle(V(-69.341024, 29.285281, 0), V(0, 0, 1), 3), math.radians(0), math.radians(180)),  # 19
    Part.LineSegment(V(-83.311586, 29.285281, 0), V(-83.311586, 21.285281, 0)),  # 20
    Part.ArcOfCircle(Part.Circle(V(-86.311586, 21.285281, 0), V(0, 0, 1), 3), math.radians(180), math.radians(360)),  # 21
    Part.LineSegment(V(-89.311586, 21.285281, 0), V(-89.311586, 29.285281, 0)),  # 22
    Part.ArcOfCircle(Part.Circle(V(-86.311586, 29.285281, 0), V(0, 0, 1), 3), math.radians(0), math.radians(180)),  # 23
    Part.LineSegment(V(-100.745117, 29.285281, 0), V(-100.745117, 21.285281, 0)),  # 24
    Part.ArcOfCircle(Part.Circle(V(-103.745117, 21.285281, 0), V(0, 0, 1), 3), math.radians(180), math.radians(360)),  # 25
    Part.LineSegment(V(-106.745117, 21.285281, 0), V(-106.745117, 29.285281, 0)),  # 26
    Part.ArcOfCircle(Part.Circle(V(-103.745117, 29.285281, 0), V(0, 0, 1), 3), math.radians(0), math.radians(180)),  # 27
    Part.LineSegment(V(-113.54307, 29.285281, 0), V(-113.54307, 21.285281, 0)),  # 28
    Part.ArcOfCircle(Part.Circle(V(-116.54307, 21.285281, 0), V(0, 0, 1), 3), math.radians(180), math.radians(360)),  # 29
    Part.LineSegment(V(-119.54307, 21.285281, 0), V(-119.54307, 29.285281, 0)),  # 30
    Part.ArcOfCircle(Part.Circle(V(-116.54307, 29.285281, 0), V(0, 0, 1), 3), math.radians(0), math.radians(180)),  # 31
    Part.LineSegment(V(-130.513633, 29.285281, 0), V(-130.513633, 21.285281, 0)),  # 32
    Part.ArcOfCircle(Part.Circle(V(-133.513633, 21.285281, 0), V(0, 0, 1), 3), math.radians(180), math.radians(360)),  # 33
    Part.LineSegment(V(-136.513633, 21.285281, 0), V(-136.513633, 29.285281, 0)),  # 34
    Part.ArcOfCircle(Part.Circle(V(-133.513633, 29.285281, 0), V(0, 0, 1), 3), math.radians(0), math.radians(180)),  # 35
    Part.LineSegment(V(-1.93693, 4.314719, 0), V(-1.93693, -3.685281, 0)),  # 36
    Part.ArcOfCircle(Part.Circle(V(-4.93693, -3.685281, 0), V(0, 0, 1), 3), math.radians(180), math.radians(360)),  # 37
    Part.LineSegment(V(-7.93693, -3.685281, 0), V(-7.93693, 4.314719, 0)),  # 38
    Part.ArcOfCircle(Part.Circle(V(-4.93693, 4.314719, 0), V(0, 0, 1), 3), math.radians(0), math.radians(180)),  # 39
    Part.LineSegment(V(-18.907493, 4.314719, 0), V(-18.907493, -3.685281, 0)),  # 40
    Part.ArcOfCircle(Part.Circle(V(-21.907493, -3.685281, 0), V(0, 0, 1), 3), math.radians(180), math.radians(360)),  # 41
    Part.LineSegment(V(-24.907493, -3.685281, 0), V(-24.907493, 4.314719, 0)),  # 42
    Part.ArcOfCircle(Part.Circle(V(-21.907493, 4.314719, 0), V(0, 0, 1), 3), math.radians(0), math.radians(180)),  # 43
    Part.LineSegment(V(-31.93693, 4.314719, 0), V(-31.93693, -3.685281, 0)),  # 44
    Part.ArcOfCircle(Part.Circle(V(-34.93693, -3.685281, 0), V(0, 0, 1), 3), math.radians(180), math.radians(360)),  # 45
    Part.LineSegment(V(-37.93693, -3.685281, 0), V(-37.93693, 4.314719, 0)),  # 46
    Part.ArcOfCircle(Part.Circle(V(-34.93693, 4.314719, 0), V(0, 0, 1), 3), math.radians(0), math.radians(180)),  # 47
    Part.LineSegment(V(-48.907493, 4.314719, 0), V(-48.907493, -3.685281, 0)),  # 48
    Part.ArcOfCircle(Part.Circle(V(-51.907493, -3.685281, 0), V(0, 0, 1), 3), math.radians(180), math.radians(360)),  # 49
    Part.LineSegment(V(-54.907493, -3.685281, 0), V(-54.907493, 4.314719, 0)),  # 50
    Part.ArcOfCircle(Part.Circle(V(-51.907493, 4.314719, 0), V(0, 0, 1), 3), math.radians(0), math.radians(180)),  # 51
    Part.LineSegment(V(-66.341024, 4.314719, 0), V(-66.341024, -3.685281, 0)),  # 52
    Part.ArcOfCircle(Part.Circle(V(-69.341024, -3.685281, 0), V(0, 0, 1), 3), math.radians(180), math.radians(360)),  # 53
    Part.LineSegment(V(-72.341024, -3.685281, 0), V(-72.341024, 4.314719, 0)),  # 54
    Part.ArcOfCircle(Part.Circle(V(-69.341024, 4.314719, 0), V(0, 0, 1), 3), math.radians(0), math.radians(180)),  # 55
    Part.LineSegment(V(-83.311586, 4.314719, 0), V(-83.311586, -3.685281, 0)),  # 56
    Part.ArcOfCircle(Part.Circle(V(-86.311586, -3.685281, 0), V(0, 0, 1), 3), math.radians(180), math.radians(360)),  # 57
    Part.LineSegment(V(-89.311586, -3.685281, 0), V(-89.311586, 4.314719, 0)),  # 58
    Part.ArcOfCircle(Part.Circle(V(-86.311586, 4.314719, 0), V(0, 0, 1), 3), math.radians(0), math.radians(180)),  # 59
    Part.LineSegment(V(-100.745117, 4.314719, 0), V(-100.745117, -3.685281, 0)),  # 60
    Part.ArcOfCircle(Part.Circle(V(-103.745117, -3.685281, 0), V(0, 0, 1), 3), math.radians(180), math.radians(360)),  # 61
    Part.LineSegment(V(-106.745117, -3.685281, 0), V(-106.745117, 4.314719, 0)),  # 62
    Part.ArcOfCircle(Part.Circle(V(-103.745117, 4.314719, 0), V(0, 0, 1), 3), math.radians(0), math.radians(180)),  # 63
    Part.LineSegment(V(-113.54307, 4.314719, 0), V(-113.54307, -3.685281, 0)),  # 64
    Part.ArcOfCircle(Part.Circle(V(-116.54307, -3.685281, 0), V(0, 0, 1), 3), math.radians(180), math.radians(360)),  # 65
    Part.LineSegment(V(-119.54307, -3.685281, 0), V(-119.54307, 4.314719, 0)),  # 66
    Part.ArcOfCircle(Part.Circle(V(-116.54307, 4.314719, 0), V(0, 0, 1), 3), math.radians(0), math.radians(180)),  # 67
    Part.LineSegment(V(-130.513633, 4.314719, 0), V(-130.513633, -3.685281, 0)),  # 68
    Part.ArcOfCircle(Part.Circle(V(-133.513633, -3.685281, 0), V(0, 0, 1), 3), math.radians(180), math.radians(360)),  # 69
    Part.LineSegment(V(-136.513633, -3.685281, 0), V(-136.513633, 4.314719, 0)),  # 70
    Part.ArcOfCircle(Part.Circle(V(-133.513633, 4.314719, 0), V(0, 0, 1), 3), math.radians(0), math.radians(180)),  # 71
], False)
sketch6.addConstraint([
    Sketcher.Constraint("Tangent", 0, 2, 1, 2),
    Sketcher.Constraint("Tangent", 1, 1, 2, 1),
    Sketcher.Constraint("Tangent", 2, 2, 3, 2),
    Sketcher.Constraint("Tangent", 3, 1, 0, 1),
    Sketcher.Constraint("Tangent", 4, 2, 5, 2),
    Sketcher.Constraint("Tangent", 5, 1, 6, 1),
    Sketcher.Constraint("Tangent", 6, 2, 7, 2),
    Sketcher.Constraint("Tangent", 7, 1, 4, 1),
    Sketcher.Constraint("Tangent", 8, 2, 9, 2),
    Sketcher.Constraint("Tangent", 9, 1, 10, 1),
    Sketcher.Constraint("Tangent", 10, 2, 11, 2),
    Sketcher.Constraint("Tangent", 11, 1, 8, 1),
    Sketcher.Constraint("Tangent", 12, 2, 13, 2),
    Sketcher.Constraint("Tangent", 13, 1, 14, 1),
    Sketcher.Constraint("Tangent", 14, 2, 15, 2),
    Sketcher.Constraint("Tangent", 15, 1, 12, 1),
    Sketcher.Constraint("Tangent", 16, 2, 17, 2),
    Sketcher.Constraint("Tangent", 17, 1, 18, 1),
    Sketcher.Constraint("Tangent", 18, 2, 19, 2),
    Sketcher.Constraint("Tangent", 19, 1, 16, 1),
    Sketcher.Constraint("Tangent", 20, 2, 21, 2),
    Sketcher.Constraint("Tangent", 21, 1, 22, 1),
    Sketcher.Constraint("Tangent", 22, 2, 23, 2),
    Sketcher.Constraint("Tangent", 23, 1, 20, 1),
    Sketcher.Constraint("Tangent", 24, 2, 25, 2),
    Sketcher.Constraint("Tangent", 25, 1, 26, 1),
    Sketcher.Constraint("Tangent", 26, 2, 27, 2),
    Sketcher.Constraint("Tangent", 27, 1, 24, 1),
    Sketcher.Constraint("Tangent", 28, 2, 29, 2),
    Sketcher.Constraint("Tangent", 29, 1, 30, 1),
    Sketcher.Constraint("Tangent", 30, 2, 31, 2),
    Sketcher.Constraint("Tangent", 31, 1, 28, 1),
    Sketcher.Constraint("Tangent", 32, 2, 33, 2),
    Sketcher.Constraint("Tangent", 33, 1, 34, 1),
    Sketcher.Constraint("Tangent", 34, 2, 35, 2),
    Sketcher.Constraint("Tangent", 35, 1, 32, 1),
    Sketcher.Constraint("Tangent", 36, 2, 37, 2),
    Sketcher.Constraint("Tangent", 37, 1, 38, 1),
    Sketcher.Constraint("Tangent", 38, 2, 39, 2),
    Sketcher.Constraint("Tangent", 39, 1, 36, 1),
    Sketcher.Constraint("Tangent", 40, 2, 41, 2),
    Sketcher.Constraint("Tangent", 41, 1, 42, 1),
    Sketcher.Constraint("Tangent", 42, 2, 43, 2),
    Sketcher.Constraint("Tangent", 43, 1, 40, 1),
    Sketcher.Constraint("Tangent", 44, 2, 45, 2),
    Sketcher.Constraint("Tangent", 45, 1, 46, 1),
    Sketcher.Constraint("Tangent", 46, 2, 47, 2),
    Sketcher.Constraint("Tangent", 47, 1, 44, 1),
    Sketcher.Constraint("Tangent", 48, 2, 49, 2),
    Sketcher.Constraint("Tangent", 49, 1, 50, 1),
    Sketcher.Constraint("Tangent", 50, 2, 51, 2),
    Sketcher.Constraint("Tangent", 51, 1, 48, 1),
    Sketcher.Constraint("Tangent", 52, 2, 53, 2),
    Sketcher.Constraint("Tangent", 53, 1, 54, 1),
    Sketcher.Constraint("Tangent", 54, 2, 55, 2),
    Sketcher.Constraint("Tangent", 55, 1, 52, 1),
    Sketcher.Constraint("Tangent", 56, 2, 57, 2),
    Sketcher.Constraint("Tangent", 57, 1, 58, 1),
    Sketcher.Constraint("Tangent", 58, 2, 59, 2),
    Sketcher.Constraint("Tangent", 59, 1, 56, 1),
    Sketcher.Constraint("Tangent", 60, 2, 61, 2),
    Sketcher.Constraint("Tangent", 61, 1, 62, 1),
    Sketcher.Constraint("Tangent", 62, 2, 63, 2),
    Sketcher.Constraint("Tangent", 63, 1, 60, 1),
    Sketcher.Constraint("Tangent", 64, 2, 65, 2),
    Sketcher.Constraint("Tangent", 65, 1, 66, 1),
    Sketcher.Constraint("Tangent", 66, 2, 67, 2),
    Sketcher.Constraint("Tangent", 67, 1, 64, 1),
    Sketcher.Constraint("Tangent", 68, 2, 69, 2),
    Sketcher.Constraint("Tangent", 69, 1, 70, 1),
    Sketcher.Constraint("Tangent", 70, 2, 71, 2),
    Sketcher.Constraint("Tangent", 71, 1, 68, 1),
    Sketcher.Constraint("Vertical", 0),
    Sketcher.Constraint("Vertical", 2),
    Sketcher.Constraint("Vertical", 4),
    Sketcher.Constraint("Vertical", 6),
    Sketcher.Constraint("Vertical", 8),
    Sketcher.Constraint("Vertical", 10),
    Sketcher.Constraint("Vertical", 12),
    Sketcher.Constraint("Vertical", 14),
    Sketcher.Constraint("Vertical", 16),
    Sketcher.Constraint("Vertical", 18),
    Sketcher.Constraint("Vertical", 20),
    Sketcher.Constraint("Vertical", 22),
    Sketcher.Constraint("Vertical", 24),
    Sketcher.Constraint("Vertical", 26),
    Sketcher.Constraint("Vertical", 28),
    Sketcher.Constraint("Vertical", 30),
    Sketcher.Constraint("Vertical", 32),
    Sketcher.Constraint("Vertical", 34),
    Sketcher.Constraint("Vertical", 36),
    Sketcher.Constraint("Vertical", 38),
    Sketcher.Constraint("Vertical", 40),
    Sketcher.Constraint("Vertical", 42),
    Sketcher.Constraint("Vertical", 44),
    Sketcher.Constraint("Vertical", 46),
    Sketcher.Constraint("Vertical", 48),
    Sketcher.Constraint("Vertical", 50),
    Sketcher.Constraint("Vertical", 52),
    Sketcher.Constraint("Vertical", 54),
    Sketcher.Constraint("Vertical", 56),
    Sketcher.Constraint("Vertical", 58),
    Sketcher.Constraint("Vertical", 60),
    Sketcher.Constraint("Vertical", 62),
    Sketcher.Constraint("Vertical", 64),
    Sketcher.Constraint("Vertical", 66),
    Sketcher.Constraint("Vertical", 68),
    Sketcher.Constraint("Vertical", 70),
    Sketcher.Constraint("Equal", 3, 5),
    Sketcher.Constraint("Equal", 7, 9),
    Sketcher.Constraint("Equal", 11, 13),
    Sketcher.Constraint("Equal", 15, 17),
    Sketcher.Constraint("Equal", 19, 21),
    Sketcher.Constraint("Equal", 23, 25),
    Sketcher.Constraint("Equal", 27, 29),
    Sketcher.Constraint("Equal", 31, 33),
    Sketcher.Constraint("Equal", 35, 37),
    Sketcher.Constraint("Equal", 39, 41),
    Sketcher.Constraint("Equal", 43, 45),
    Sketcher.Constraint("Equal", 47, 49),
    Sketcher.Constraint("Equal", 51, 53),
    Sketcher.Constraint("Equal", 55, 57),
    Sketcher.Constraint("Equal", 59, 61),
    Sketcher.Constraint("Equal", 63, 65),
    Sketcher.Constraint("Equal", 67, 69),
    Sketcher.Constraint("Horizontal", 1, 3, 5, 3),
    Sketcher.Constraint("Horizontal", 3, 3, 7, 3),
    Sketcher.Constraint("Horizontal", 5, 3, 9, 3),
    Sketcher.Constraint("Horizontal", 7, 3, 11, 3),
    Sketcher.Constraint("Horizontal", 9, 3, 13, 3),
    Sketcher.Constraint("Horizontal", 11, 3, 15, 3),
    Sketcher.Constraint("Horizontal", 13, 3, 17, 3),
    Sketcher.Constraint("Horizontal", 15, 3, 19, 3),
    Sketcher.Constraint("Horizontal", 17, 3, 21, 3),
    Sketcher.Constraint("Horizontal", 19, 3, 23, 3),
    Sketcher.Constraint("Horizontal", 21, 3, 25, 3),
    Sketcher.Constraint("Horizontal", 23, 3, 27, 3),
    Sketcher.Constraint("Horizontal", 25, 3, 29, 3),
    Sketcher.Constraint("Horizontal", 27, 3, 31, 3),
    Sketcher.Constraint("Horizontal", 29, 3, 33, 3),
    Sketcher.Constraint("Horizontal", 31, 3, 35, 3),
    Sketcher.Constraint("Horizontal", 37, 3, 41, 3),
    Sketcher.Constraint("Horizontal", 39, 3, 43, 3),
    Sketcher.Constraint("Horizontal", 41, 3, 45, 3),
    Sketcher.Constraint("Horizontal", 43, 3, 47, 3),
    Sketcher.Constraint("Horizontal", 45, 3, 49, 3),
    Sketcher.Constraint("Horizontal", 47, 3, 51, 3),
    Sketcher.Constraint("Horizontal", 49, 3, 53, 3),
    Sketcher.Constraint("Horizontal", 51, 3, 55, 3),
    Sketcher.Constraint("Horizontal", 53, 3, 57, 3),
    Sketcher.Constraint("Horizontal", 55, 3, 59, 3),
    Sketcher.Constraint("Horizontal", 57, 3, 61, 3),
    Sketcher.Constraint("Horizontal", 59, 3, 63, 3),
    Sketcher.Constraint("Horizontal", 61, 3, 65, 3),
    Sketcher.Constraint("Horizontal", 63, 3, 67, 3),
    Sketcher.Constraint("Horizontal", 65, 3, 69, 3),
    Sketcher.Constraint("Horizontal", 67, 3, 71, 3),
    Sketcher.Constraint("Vertical", 3, 3, 37, 3),
    Sketcher.Constraint("Vertical", 7, 3, 41, 3),
    Sketcher.Constraint("Vertical", 11, 3, 45, 3),
    Sketcher.Constraint("Vertical", 15, 3, 49, 3),
    Sketcher.Constraint("Vertical", 19, 3, 53, 3),
    Sketcher.Constraint("Vertical", 23, 3, 57, 3),
    Sketcher.Constraint("Vertical", 27, 3, 61, 3),
    Sketcher.Constraint("Vertical", 31, 3, 65, 3),
    Sketcher.Constraint("Vertical", 35, 3, 69, 3),
    Sketcher.Constraint("Equal", 34, 36),
    Sketcher.Constraint("Radius", 1, 3.0),
    Sketcher.Constraint("DistanceY", 0, 2, 0, 1, 8.0),
    Sketcher.Constraint("DistanceX", 1, 3, -1, 1, 4.93693),
    Sketcher.Constraint("DistanceY", -1, 1, 1, 3, 21.285281),
    Sketcher.Constraint("DistanceX", 9, 3, -1, 1, 34.93693),
    Sketcher.Constraint("DistanceX", 29, 3, -1, 1, 116.54307),
    Sketcher.Constraint("DistanceY", 37, 3, -1, 1, 3.685281),
    Sketcher.Constraint("DistanceX", 5, 3, -1, 1, 21.907493),
    Sketcher.Constraint("DistanceX", 13, 3, -1, 1, 51.907493),
    Sketcher.Constraint("DistanceX", 17, 3, -1, 1, 69.341024),
    Sketcher.Constraint("DistanceX", 21, 3, -1, 1, 86.311586),
    Sketcher.Constraint("DistanceX", 25, 3, -1, 1, 103.745117),
    Sketcher.Constraint("DistanceX", 33, 3, -1, 1, 133.513633),
])
pocket5 = doc.addObject("PartDesign::Pocket", "Pocket004")
body.addObject(pocket5)
pocket5.Profile = sketch6
pocket5.Type = "TwoLengths"
pocket5.Length = 17
pocket5.Length2 = 17

# Sketch on XZ plane
sketch7 = doc.addObject("Sketcher::SketchObject", "Sketch006")
body.addObject(sketch7)
sketch7.AttachmentSupport = (doc.XZ_Plane, [""])
sketch7.MapMode = "FlatFace"
sketch7.AttachmentOffset = App.Placement(V(0, 0, 137.893899), App.Rotation())
add_polygon(sketch7, [(29.883131, 36.734345), (29.883131, -11.05465), (159.642029, -11.05465), (159.642029, 36.734345)])  # lines 0-3
sketch7.addConstraint([
    Sketcher.Constraint("Vertical", 0),
    Sketcher.Constraint("Horizontal", 1),
    Sketcher.Constraint("Vertical", 2),
    Sketcher.Constraint("Horizontal", 3),
    Sketcher.Constraint("DistanceX", 1, 1, 1, 2, 129.758898),
    Sketcher.Constraint("DistanceY", 0, 2, 0, 1, 47.788995),
    Sketcher.Constraint("DistanceX", -1, 1, 0, 2, 29.883131),
    Sketcher.Constraint("DistanceY", 0, 2, -1, 1, 11.05465),
])
pocket6 = doc.addObject("PartDesign::Pocket", "Pocket005")
body.addObject(pocket6)
pocket6.Profile = sketch7
pocket6.Length = 109.711688

# Sketch on YZ plane
sketch8 = doc.addObject("Sketcher::SketchObject", "Sketch007")
body.addObject(sketch8)
sketch8.AttachmentSupport = (doc.YZ_Plane, [""])
sketch8.MapMode = "FlatFace"
sketch8.AttachmentOffset = App.Placement(V(0, 0, 120.766968), App.Rotation())
add_polygon(sketch8, [(15.89931, 32.786569), (-42.743733, 32.786569), (-42.743733, -7.186569), (15.89931, -7.186569)])  # lines 0-3
sketch8.addConstraint([
    Sketcher.Constraint("Horizontal", 0),
    Sketcher.Constraint("Vertical", 1),
    Sketcher.Constraint("Horizontal", 2),
    Sketcher.Constraint("Vertical", 3),
    Sketcher.Constraint("DistanceY", 1, 2, 1, 1, 39.973138),
    Sketcher.Constraint("DistanceX", 0, 2, 0, 1, 58.643042),
    Sketcher.Constraint("DistanceY", -1, 1, 0, 2, 32.786569),
    Sketcher.Constraint("DistanceX", -1, 1, 2, 2, 15.89931),
])
pocket7 = doc.addObject("PartDesign::Pocket", "Pocket006")
body.addObject(pocket7)
pocket7.Profile = sketch8
pocket7.Length = 33.711688

doc.recompute()
